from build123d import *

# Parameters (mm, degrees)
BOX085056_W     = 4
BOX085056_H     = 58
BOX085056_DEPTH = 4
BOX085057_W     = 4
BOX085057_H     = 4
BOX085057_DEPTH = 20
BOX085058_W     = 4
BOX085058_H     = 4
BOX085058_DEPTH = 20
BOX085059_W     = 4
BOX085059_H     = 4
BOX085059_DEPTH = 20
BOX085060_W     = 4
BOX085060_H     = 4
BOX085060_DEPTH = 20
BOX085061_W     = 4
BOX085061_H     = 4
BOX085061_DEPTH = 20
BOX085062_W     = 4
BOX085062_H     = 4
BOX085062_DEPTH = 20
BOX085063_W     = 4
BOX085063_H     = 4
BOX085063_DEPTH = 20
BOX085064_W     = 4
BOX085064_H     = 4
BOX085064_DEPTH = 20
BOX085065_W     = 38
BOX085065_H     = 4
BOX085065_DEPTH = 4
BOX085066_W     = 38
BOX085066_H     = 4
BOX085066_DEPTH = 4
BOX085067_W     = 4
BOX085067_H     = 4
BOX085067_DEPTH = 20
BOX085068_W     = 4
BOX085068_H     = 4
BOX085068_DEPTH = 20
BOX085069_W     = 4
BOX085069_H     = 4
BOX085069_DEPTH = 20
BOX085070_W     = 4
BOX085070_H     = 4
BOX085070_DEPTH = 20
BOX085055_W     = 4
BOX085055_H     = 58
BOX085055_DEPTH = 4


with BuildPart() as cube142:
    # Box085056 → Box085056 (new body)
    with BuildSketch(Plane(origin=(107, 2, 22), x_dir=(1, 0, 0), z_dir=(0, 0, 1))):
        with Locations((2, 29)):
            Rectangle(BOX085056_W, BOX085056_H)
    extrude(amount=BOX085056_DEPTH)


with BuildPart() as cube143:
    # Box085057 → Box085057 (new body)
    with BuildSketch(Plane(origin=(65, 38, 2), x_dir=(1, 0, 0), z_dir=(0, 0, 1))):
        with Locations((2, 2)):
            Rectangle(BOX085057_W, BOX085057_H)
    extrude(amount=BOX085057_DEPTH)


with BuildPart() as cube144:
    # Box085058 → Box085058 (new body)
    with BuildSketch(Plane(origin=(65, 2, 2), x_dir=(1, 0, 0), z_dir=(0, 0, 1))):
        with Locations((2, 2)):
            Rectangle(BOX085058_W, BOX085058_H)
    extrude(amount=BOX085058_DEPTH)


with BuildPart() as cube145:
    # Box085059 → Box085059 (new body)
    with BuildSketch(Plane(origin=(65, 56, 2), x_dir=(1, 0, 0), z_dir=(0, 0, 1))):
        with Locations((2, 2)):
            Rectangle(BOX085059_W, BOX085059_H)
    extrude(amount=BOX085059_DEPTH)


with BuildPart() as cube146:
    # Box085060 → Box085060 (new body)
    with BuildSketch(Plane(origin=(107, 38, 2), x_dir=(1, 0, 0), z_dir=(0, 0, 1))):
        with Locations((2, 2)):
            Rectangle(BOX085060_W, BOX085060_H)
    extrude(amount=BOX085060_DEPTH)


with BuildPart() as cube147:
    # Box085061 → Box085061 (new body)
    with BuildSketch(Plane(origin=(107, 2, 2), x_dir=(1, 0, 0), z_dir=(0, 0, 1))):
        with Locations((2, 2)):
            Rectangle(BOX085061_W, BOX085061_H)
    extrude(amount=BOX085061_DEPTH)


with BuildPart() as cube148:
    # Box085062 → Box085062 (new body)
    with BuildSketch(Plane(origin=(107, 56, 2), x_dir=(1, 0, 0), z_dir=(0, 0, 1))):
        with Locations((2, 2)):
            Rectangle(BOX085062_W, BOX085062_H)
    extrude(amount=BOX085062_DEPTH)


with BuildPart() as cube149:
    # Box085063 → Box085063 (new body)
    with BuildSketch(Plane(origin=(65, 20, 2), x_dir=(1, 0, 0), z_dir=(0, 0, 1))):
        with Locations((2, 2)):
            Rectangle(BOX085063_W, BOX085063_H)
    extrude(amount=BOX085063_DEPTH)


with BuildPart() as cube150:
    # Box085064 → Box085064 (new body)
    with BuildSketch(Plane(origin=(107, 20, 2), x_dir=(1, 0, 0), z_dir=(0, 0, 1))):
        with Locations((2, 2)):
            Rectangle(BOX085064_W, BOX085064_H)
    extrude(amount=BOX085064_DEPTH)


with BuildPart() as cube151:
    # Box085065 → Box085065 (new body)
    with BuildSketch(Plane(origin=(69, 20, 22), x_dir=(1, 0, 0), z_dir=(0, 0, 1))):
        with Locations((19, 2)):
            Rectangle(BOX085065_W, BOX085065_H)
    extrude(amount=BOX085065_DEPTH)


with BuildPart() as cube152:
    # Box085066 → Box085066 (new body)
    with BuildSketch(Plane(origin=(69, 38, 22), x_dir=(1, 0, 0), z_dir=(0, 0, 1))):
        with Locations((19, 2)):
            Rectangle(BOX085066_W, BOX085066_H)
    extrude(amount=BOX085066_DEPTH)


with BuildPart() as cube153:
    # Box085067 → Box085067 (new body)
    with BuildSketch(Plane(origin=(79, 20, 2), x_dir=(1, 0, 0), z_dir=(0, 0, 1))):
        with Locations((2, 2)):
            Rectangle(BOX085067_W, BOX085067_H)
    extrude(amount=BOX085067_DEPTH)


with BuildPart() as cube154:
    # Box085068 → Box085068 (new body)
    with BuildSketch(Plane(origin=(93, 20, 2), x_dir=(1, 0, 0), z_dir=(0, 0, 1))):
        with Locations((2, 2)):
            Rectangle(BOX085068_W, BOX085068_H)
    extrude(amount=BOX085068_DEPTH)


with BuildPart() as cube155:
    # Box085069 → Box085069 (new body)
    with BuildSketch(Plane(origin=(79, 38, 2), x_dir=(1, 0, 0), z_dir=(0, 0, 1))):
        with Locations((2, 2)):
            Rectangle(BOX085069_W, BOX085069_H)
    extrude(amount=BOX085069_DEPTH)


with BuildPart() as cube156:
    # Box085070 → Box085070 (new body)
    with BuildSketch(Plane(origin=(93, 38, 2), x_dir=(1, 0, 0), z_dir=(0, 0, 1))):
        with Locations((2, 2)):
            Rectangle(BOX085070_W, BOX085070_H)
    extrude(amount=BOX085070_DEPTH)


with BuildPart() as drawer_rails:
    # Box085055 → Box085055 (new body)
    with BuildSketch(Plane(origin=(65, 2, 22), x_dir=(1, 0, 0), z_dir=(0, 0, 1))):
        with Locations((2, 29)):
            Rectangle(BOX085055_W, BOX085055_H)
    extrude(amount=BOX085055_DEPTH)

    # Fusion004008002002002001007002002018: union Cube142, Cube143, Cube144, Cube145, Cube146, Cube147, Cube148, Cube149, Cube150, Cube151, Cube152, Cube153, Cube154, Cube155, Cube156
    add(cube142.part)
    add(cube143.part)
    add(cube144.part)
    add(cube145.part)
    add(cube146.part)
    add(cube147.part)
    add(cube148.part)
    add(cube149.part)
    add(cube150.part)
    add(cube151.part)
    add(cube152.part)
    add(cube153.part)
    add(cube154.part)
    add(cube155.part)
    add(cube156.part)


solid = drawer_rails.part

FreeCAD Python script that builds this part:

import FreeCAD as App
import Part
import Sketcher

V = App.Vector

doc = App.newDocument("Part")
body = doc.addObject("PartDesign::Body", "Body")

# Sketch on XY plane
sketch1 = body.newObject("Sketcher::SketchObject", "Sketch")
sketch1.AttachmentSupport = (doc.getObject("XY_Plane"), [""])
sketch1.MapMode = "FlatFace"
sketch1.AttachmentOffset = App.Placement(V(0, 0, 22), App.Rotation())
sketch1.addGeometry([
    Part.LineSegment(V(107, 60, 0), V(107, 2, 0)),
    Part.LineSegment(V(107, 2, 0), V(111, 2, 0)),
    Part.LineSegment(V(111, 2, 0), V(111, 60, 0)),
    Part.LineSegment(V(111, 60, 0), V(107, 60, 0)),
], False)
sketch1.addConstraint([
    Sketcher.Constraint("Coincident", 0, 2, 1, 1),
    Sketcher.Constraint("Coincident", 1, 2, 2, 1),
    Sketcher.Constraint("Coincident", 2, 2, 3, 1),
    Sketcher.Constraint("Coincident", 3, 2, 0, 1),
    Sketcher.Constraint("Vertical", 0),
    Sketcher.Constraint("Horizontal", 1),
    Sketcher.Constraint("Vertical", 2),
    Sketcher.Constraint("Horizontal", 3),
    Sketcher.Constraint("DistanceX", 1, 1, 1, 2, 4.0),
    Sketcher.Constraint("DistanceY", 0, 2, 0, 1, 58.0),
    Sketcher.Constraint("DistanceX", -1, 1, 0, 2, 107.0),
    Sketcher.Constraint("DistanceY", -1, 1, 0, 2, 2.0),
])
pad1 = body.newObject("PartDesign::Pad", "Pad")
pad1.Profile = sketch1
pad1.Length = 4
body2 = doc.addObject("PartDesign::Body", "Body001")

# Sketch on XY plane
sketch2 = body2.newObject("Sketcher::SketchObject", "Sketch001")
sketch2.AttachmentSupport = (doc.getObject("XY_Plane001"), [""])
sketch2.MapMode = "FlatFace"
sketch2.AttachmentOffset = App.Placement(V(0, 0, 2), App.Rotation())
sketch2.addGeometry([
    Part.LineSegment(V(65, 42, 0), V(65, 38, 0)),
    Part.LineSegment(V(65, 38, 0), V(69, 38, 0)),
    Part.LineSegment(V(69, 38, 0), V(69, 42, 0)),
    Part.LineSegment(V(69, 42, 0), V(65, 42, 0)),
], False)
sketch2.addConstraint([
    Sketcher.Constraint("Coincident", 0, 2, 1, 1),
    Sketcher.Constraint("Coincident", 1, 2, 2, 1),
    Sketcher.Constraint("Coincident", 2, 2, 3, 1),
    Sketcher.Constraint("Coincident", 3, 2, 0, 1),
    Sketcher.Constraint("Vertical", 0),
    Sketcher.Constraint("Horizontal", 1),
    Sketcher.Constraint("Vertical", 2),
    Sketcher.Constraint("Horizontal", 3),
    Sketcher.Constraint("Equal", 3, 0),
    Sketcher.Constraint("DistanceX", 1, 1, 1, 2, 4.0),
    Sketcher.Constraint("DistanceX", -1, 1, 0, 2, 65.0),
    Sketcher.Constraint("DistanceY", -1, 1, 0, 2, 38.0),
])
pad2 = body2.newObject("PartDesign::Pad", "Pad001")
pad2.Profile = sketch2
pad2.Length = 20
body3 = doc.addObject("PartDesign::Body", "Body002")

# Sketch on XY plane
sketch3 = body3.newObject("Sketcher::SketchObject", "Sketch002")
sketch3.AttachmentSupport = (doc.getObject("XY_Plane002"), [""])
sketch3.MapMode = "FlatFace"
sketch3.AttachmentOffset = App.Placement(V(0, 0, 2), App.Rotation())
sketch3.addGeometry([
    Part.LineSegment(V(65, 6, 0), V(65, 2, 0)),
    Part.LineSegment(V(65, 2, 0), V(69, 2, 0)),
    Part.LineSegment(V(69, 2, 0), V(69, 6, 0)),
    Part.LineSegment(V(69, 6, 0), V(65, 6, 0)),
], False)
sketch3.addConstraint([
    Sketcher.Constraint("Coincident", 0, 2, 1, 1),
    Sketcher.Constraint("Coincident", 1, 2, 2, 1),
    Sketcher.Constraint("Coincident", 2, 2, 3, 1),
    Sketcher.Constraint("Coincident", 3, 2, 0, 1),
    Sketcher.Constraint("Vertical", 0),
    Sketcher.Constraint("Horizontal", 1),
    Sketcher.Constraint("Vertical", 2),
    Sketcher.Constraint("Horizontal", 3),
    Sketcher.Constraint("Equal", 3, 0),
    Sketcher.Constraint("DistanceX", 1, 1, 1, 2, 4.0),
    Sketcher.Constraint("DistanceX", -1, 1, 0, 2, 65.0),
    Sketcher.Constraint("DistanceY", -1, 1, 0, 2, 2.0),
])
pad3 = body3.newObject("PartDesign::Pad", "Pad002")
pad3.Profile = sketch3
pad3.Length = 20
body4 = doc.addObject("PartDesign::Body", "Body003")

# Sketch on XY plane
sketch4 = body4.newObject("Sketcher::SketchObject", "Sketch003")
sketch4.AttachmentSupport = (doc.getObject("XY_Plane003"), [""])
sketch4.MapMode = "FlatFace"
sketch4.AttachmentOffset = App.Placement(V(0, 0, 2), App.Rotation())
sketch4.addGeometry([
    Part.LineSegment(V(65, 60, 0), V(65, 56, 0)),
    Part.LineSegment(V(65, 56, 0), V(69, 56, 0)),
    Part.LineSegment(V(69, 56, 0), V(69, 60, 0)),
    Part.LineSegment(V(69, 60, 0), V(65, 60, 0)),
], False)
sketch4.addConstraint([
    Sketcher.Constraint("Coincident", 0, 2, 1, 1),
    Sketcher.Constraint("Coincident", 1, 2, 2, 1),
    Sketcher.Constraint("Coincident", 2, 2, 3, 1),
    Sketcher.Constraint("Coincident", 3, 2, 0, 1),
    Sketcher.Constraint("Vertical", 0),
    Sketcher.Constraint("Horizontal", 1),
    Sketcher.Constraint("Vertical", 2),
    Sketcher.Constraint("Horizontal", 3),
    Sketcher.Constraint("Equal", 3, 0),
    Sketcher.Constraint("DistanceX", 1, 1, 1, 2, 4.0),
    Sketcher.Constraint("DistanceX", -1, 1, 0, 2, 65.0),
    Sketcher.Constraint("DistanceY", -1, 1, 0, 2, 56.0),
])
pad4 = body4.newObject("PartDesign::Pad", "Pad003")
pad4.Profile = sketch4
pad4.Length = 20
body5 = doc.addObject("PartDesign::Body", "Body004")

# Sketch on XY plane
sketch5 = body5.newObject("Sketcher::SketchObject", "Sketch004")
sketch5.AttachmentSupport = (doc.getObject("XY_Plane004"), [""])
sketch5.MapMode = "FlatFace"
sketch5.AttachmentOffset = App.Placement(V(0, 0, 2), App.Rotation())
sketch5.addGeometry([
    Part.LineSegment(V(107, 42, 0), V(107, 38, 0)),
    Part.LineSegment(V(107, 38, 0), V(111, 38, 0)),
    Part.LineSegment(V(111, 38, 0), V(111, 42, 0)),
    Part.LineSegment(V(111, 42, 0), V(107, 42, 0)),
], False)
sketch5.addConstraint([
    Sketcher.Constraint("Coincident", 0, 2, 1, 1),
    Sketcher.Constraint("Coincident", 1, 2, 2, 1),
    Sketcher.Constraint("Coincident", 2, 2, 3, 1),
    Sketcher.Constraint("Coincident", 3, 2, 0, 1),
    Sketcher.Constraint("Vertical", 0),
    Sketcher.Constraint("Horizontal", 1),
    Sketcher.Constraint("Vertical", 2),
    Sketcher.Constraint("Horizontal", 3),
    Sketcher.Constraint("Equal", 3, 0),
    Sketcher.Constraint("DistanceX", 1, 1, 1, 2, 4.0),
    Sketcher.Constraint("DistanceX", -1, 1, 0, 2, 107.0),
    Sketcher.Constraint("DistanceY", -1, 1, 0, 2, 38.0),
])
pad5 = body5.newObject("PartDesign::Pad", "Pad004")
pad5.Profile = sketch5
pad5.Length = 20
body6 = doc.addObject("PartDesign::Body", "Body005")

# Sketch on XY plane
sketch6 = body6.newObject("Sketcher::SketchObject", "Sketch005")
sketch6.AttachmentSupport = (doc.getObject("XY_Plane005"), [""])
sketch6.MapMode = "FlatFace"
sketch6.AttachmentOffset = App.Placement(V(0, 0, 2), App.Rotation())
sketch6.addGeometry([
    Part.LineSegment(V(107, 6, 0), V(107, 2, 0)),
    Part.LineSegment(V(107, 2, 0), V(111, 2, 0)),
    Part.LineSegment(V(111, 2, 0), V(111, 6, 0)),
    Part.LineSegment(V(111, 6, 0), V(107, 6, 0)),
], False)
sketch6.addConstraint([
    Sketcher.Constraint("Coincident", 0, 2, 1, 1),
    Sketcher.Constraint("Coincident", 1, 2, 2, 1),
    Sketcher.Constraint("Coincident", 2, 2, 3, 1),
    Sketcher.Constraint("Coincident", 3, 2, 0, 1),
    Sketcher.Constraint("Vertical", 0),
    Sketcher.Constraint("Horizontal", 1),
    Sketcher.Constraint("Vertical", 2),
    Sketcher.Constraint("Horizontal", 3),
    Sketcher.Constraint("Equal", 3, 0),
    Sketcher.Constraint("DistanceX", 1, 1, 1, 2, 4.0),
    Sketcher.Constraint("DistanceX", -1, 1, 0, 2, 107.0),
    Sketcher.Constraint("DistanceY", -1, 1, 0, 2, 2.0),
])
pad6 = body6.newObject("PartDesign::Pad", "Pad005")
pad6.Profile = sketch6
pad6.Length = 20
body7 = doc.addObject("PartDesign::Body", "Body006")

# Sketch on XY plane
sketch7 = body7.newObject("Sketcher::SketchObject", "Sketch006")
sketch7.AttachmentSupport = (doc.getObject("XY_Plane006"), [""])
sketch7.MapMode = "FlatFace"
sketch7.AttachmentOffset = App.Placement(V(0, 0, 2), App.Rotation())
sketch7.addGeometry([
    Part.LineSegment(V(107, 60, 0), V(107, 56, 0)),
    Part.LineSegment(V(107, 56, 0), V(111, 56, 0)),
    Part.LineSegment(V(111, 56, 0), V(111, 60, 0)),
    Part.LineSegment(V(111, 60, 0), V(107, 60, 0)),
], False)
sketch7.addConstraint([
    Sketcher.Constraint("Coincident", 0, 2, 1, 1),
    Sketcher.Constraint("Coincident", 1, 2, 2, 1),
    Sketcher.Constraint("Coincident", 2, 2, 3, 1),
    Sketcher.Constraint("Coincident", 3, 2, 0, 1),
    Sketcher.Constraint("Vertical", 0),
    Sketcher.Constraint("Horizontal", 1),
    Sketcher.Constraint("Vertical", 2),
    Sketcher.Constraint("Horizontal", 3),
    Sketcher.Constraint("Equal", 3, 0),
    Sketcher.Constraint("DistanceX", 1, 1, 1, 2, 4.0),
    Sketcher.Constraint("DistanceX", -1, 1, 0, 2, 107.0),
    Sketcher.Constraint("DistanceY", -1, 1, 0, 2, 56.0),
])
pad7 = body7.newObject("PartDesign::Pad", "Pad006")
pad7.Profile = sketch7
pad7.Length = 20
body8 = doc.addObject("PartDesign::Body", "Body007")

# Sketch on XY plane
sketch8 = body8.newObject("Sketcher::SketchObject", "Sketch007")
sketch8.AttachmentSupport = (doc.getObject("XY_Plane007"), [""])
sketch8.MapMode = "FlatFace"
sketch8.AttachmentOffset = App.Placement(V(0, 0, 2), App.Rotation())
sketch8.addGeometry([
    Part.LineSegment(V(65, 24, 0), V(65, 20, 0)),
    Part.LineSegment(V(65, 20, 0), V(69, 20, 0)),
    Part.LineSegment(V(69, 20, 0), V(69, 24, 0)),
    Part.LineSegment(V(69, 24, 0), V(65, 24, 0)),
], False)
sketch8.addConstraint([
    Sketcher.Constraint("Coincident", 0, 2, 1, 1),
    Sketcher.Constraint("Coincident", 1, 2, 2, 1),
    Sketcher.Constraint("Coincident", 2, 2, 3, 1),
    Sketcher.Constraint("Coincident", 3, 2, 0, 1),
    Sketcher.Constraint("Vertical", 0),
    Sketcher.Constraint("Horizontal", 1),
    Sketcher.Constraint("Vertical", 2),
    Sketcher.Constraint("Horizontal", 3),
    Sketcher.Constraint("Equal", 3, 0),
    Sketcher.Constraint("DistanceX", 1, 1, 1, 2, 4.0),
    Sketcher.Constraint("DistanceX", -1, 1, 0, 2, 65.0),
    Sketcher.Constraint("DistanceY", -1, 1, 0, 2, 20.0),
])
pad8 = body8.newObject("PartDesign::Pad", "Pad007")
pad8.Profile = sketch8
pad8.Length = 20
body9 = doc.addObject("PartDesign::Body", "Body008")

# Sketch on XY plane
sketch9 = body9.newObject("Sketcher::SketchObject", "Sketch008")
sketch9.AttachmentSupport = (doc.getObject("XY_Plane008"), [""])
sketch9.MapMode = "FlatFace"
sketch9.AttachmentOffset = App.Placement(V(0, 0, 2), App.Rotation())
sketch9.addGeometry([
    Part.LineSegment(V(107, 24, 0), V(107, 20, 0)),
    Part.LineSegment(V(107, 20, 0), V(111, 20, 0)),
    Part.LineSegment(V(111, 20, 0), V(111, 24, 0)),
    Part.LineSegment(V(111, 24, 0), V(107, 24, 0)),
], False)
sketch9.addConstraint([
    Sketcher.Constraint("Coincident", 0, 2, 1, 1),
    Sketcher.Constraint("Coincident", 1, 2, 2, 1),
    Sketcher.Constraint("Coincident", 2, 2, 3, 1),
    Sketcher.Constraint("Coincident", 3, 2, 0, 1),
    Sketcher.Constraint("Vertical", 0),
    Sketcher.Constraint("Horizontal", 1),
    Sketcher.Constraint("Vertical", 2),
    Sketcher.Constraint("Horizontal", 3),
    Sketcher.Constraint("Equal", 3, 0),
    Sketcher.Constraint("DistanceX", 1, 1, 1, 2, 4.0),
    Sketcher.Constraint("DistanceX", -1, 1, 0, 2, 107.0),
    Sketcher.Constraint("DistanceY", -1, 1, 0, 2, 20.0),
])
pad9 = body9.newObject("PartDesign::Pad", "Pad008")
pad9.Profile = sketch9
pad9.Length = 20
body10 = doc.addObject("PartDesign::Body", "Body009")

# Sketch on XY plane
sketch10 = body10.newObject("Sketcher::SketchObject", "Sketch009")
sketch10.AttachmentSupport = (doc.getObject("XY_Plane009"), [""])
sketch10.MapMode = "FlatFace"
sketch10.AttachmentOffset = App.Placement(V(0, 0, 22), App.Rotation())
sketch10.addGeometry([
    Part.LineSegment(V(69, 24, 0), V(69, 20, 0)),
    Part.LineSegment(V(69, 20, 0), V(107, 20, 0)),
    Part.LineSegment(V(107, 20, 0), V(107, 24, 0)),
    Part.LineSegment(V(107, 24, 0), V(69, 24, 0)),
], False)
sketch10.addConstraint([
    Sketcher.Constraint("Coincident", 0, 2, 1, 1),
    Sketcher.Constraint("Coincident", 1, 2, 2, 1),
    Sketcher.Constraint("Coincident", 2, 2, 3, 1),
    Sketcher.Constraint("Coincident", 3, 2, 0, 1),
    Sketcher.Constraint("Vertical", 0),
    Sketcher.Constraint("Horizontal", 1),
    Sketcher.Constraint("Vertical", 2),
    Sketcher.Constraint("Horizontal", 3),
    Sketcher.Constraint("DistanceX", 1, 1, 1, 2, 38.0),
    Sketcher.Constraint("DistanceY", 0, 2, 0, 1, 4.0),
    Sketcher.Constraint("DistanceX", -1, 1, 0, 2, 69.0),
    Sketcher.Constraint("DistanceY", -1, 1, 0, 2, 20.0),
])
pad10 = body10.newObject("PartDesign::Pad", "Pad009")
pad10.Profile = sketch10
pad10.Length = 4
body11 = doc.addObject("PartDesign::Body", "Body010")

# Sketch on XY plane
sketch11 = body11.newObject("Sketcher::SketchObject", "Sketch010")
sketch11.AttachmentSupport = (doc.getObject("XY_Plane010"), [""])
sketch11.MapMode = "FlatFace"
sketch11.AttachmentOffset = App.Placement(V(0, 0, 22), App.Rotation())
sketch11.addGeometry([
    Part.LineSegment(V(69, 42, 0), V(69, 38, 0)),
    Part.LineSegment(V(69, 38, 0), V(107, 38, 0)),
    Part.LineSegment(V(107, 38, 0), V(107, 42, 0)),
    Part.LineSegment(V(107, 42, 0), V(69, 42, 0)),
], False)
sketch11.addConstraint([
    Sketcher.Constraint("Coincident", 0, 2, 1, 1),
    Sketcher.Constraint("Coincident", 1, 2, 2, 1),
    Sketcher.Constraint("Coincident", 2, 2, 3, 1),
    Sketcher.Constraint("Coincident", 3, 2, 0, 1),
    Sketcher.Constraint("Vertical", 0),
    Sketcher.Constraint("Horizontal", 1),
    Sketcher.Constraint("Vertical", 2),
    Sketcher.Constraint("Horizontal", 3),
    Sketcher.Constraint("DistanceX", 1, 1, 1, 2, 38.0),
    Sketcher.Constraint("DistanceY", 0, 2, 0, 1, 4.0),
    Sketcher.Constraint("DistanceX", -1, 1, 0, 2, 69.0),
    Sketcher.Constraint("DistanceY", -1, 1, 0, 2, 38.0),
])
pad11 = body11.newObject("PartDesign::Pad", "Pad010")
pad11.Profile = sketch11
pad11.Length = 4
body12 = doc.addObject("PartDesign::Body", "Body011")

# Sketch on XY plane
sketch12 = body12.newObject("Sketcher::SketchObject", "Sketch011")
sketch12.AttachmentSupport = (doc.getObject("XY_Plane011"), [""])
sketch12.MapMode = "FlatFace"
sketch12.AttachmentOffset = App.Placement(V(0, 0, 2), App.Rotation())
sketch12.addGeometry([
    Part.LineSegment(V(79, 24, 0), V(79, 20, 0)),
    Part.LineSegment(V(79, 20, 0), V(83, 20, 0)),
    Part.LineSegment(V(83, 20, 0), V(83, 24, 0)),
    Part.LineSegment(V(83, 24, 0), V(79, 24, 0)),
], False)
sketch12.addConstraint([
    Sketcher.Constraint("Coincident", 0, 2, 1, 1),
    Sketcher.Constraint("Coincident", 1, 2, 2, 1),
    Sketcher.Constraint("Coincident", 2, 2, 3, 1),
    Sketcher.Constraint("Coincident", 3, 2, 0, 1),
    Sketcher.Constraint("Vertical", 0),
    Sketcher.Constraint("Horizontal", 1),
    Sketcher.Constraint("Vertical", 2),
    Sketcher.Constraint("Horizontal", 3),
    Sketcher.Constraint("Equal", 3, 0),
    Sketcher.Constraint("DistanceX", 1, 1, 1, 2, 4.0),
    Sketcher.Constraint("DistanceX", -1, 1, 0, 2, 79.0),
    Sketcher.Constraint("DistanceY", -1, 1, 0, 2, 20.0),
])
pad12 = body12.newObject("PartDesign::Pad", "Pad011")
pad12.Profile = sketch12
pad12.Length = 20
body13 = doc.addObject("PartDesign::Body", "Body012")

# Sketch on XY plane
sketch13 = body13.newObject("Sketcher::SketchObject", "Sketch012")
sketch13.AttachmentSupport = (doc.getObject("XY_Plane012"), [""])
sketch13.MapMode = "FlatFace"
sketch13.AttachmentOffset = App.Placement(V(0, 0, 2), App.Rotation())
sketch13.addGeometry([
    Part.LineSegment(V(93, 24, 0), V(93, 20, 0)),
    Part.LineSegment(V(93, 20, 0), V(97, 20, 0)),
    Part.LineSegment(V(97, 20, 0), V(97, 24, 0)),
    Part.LineSegment(V(97, 24, 0), V(93, 24, 0)),
], False)
sketch13.addConstraint([
    Sketcher.Constraint("Coincident", 0, 2, 1, 1),
    Sketcher.Constraint("Coincident", 1, 2, 2, 1),
    Sketcher.Constraint("Coincident", 2, 2, 3, 1),
    Sketcher.Constraint("Coincident", 3, 2, 0, 1),
    Sketcher.Constraint("Vertical", 0),
    Sketcher.Constraint("Horizontal", 1),
    Sketcher.Constraint("Vertical", 2),
    Sketcher.Constraint("Horizontal", 3),
    Sketcher.Constraint("Equal", 3, 0),
    Sketcher.Constraint("DistanceX", 1, 1, 1, 2, 4.0),
    Sketcher.Constraint("DistanceX", -1, 1, 0, 2, 93.0),
    Sketcher.Constraint("DistanceY", -1, 1, 0, 2, 20.0),
])
pad13 = body13.newObject("PartDesign::Pad", "Pad012")
pad13.Profile = sketch13
pad13.Length = 20
body14 = doc.addObject("PartDesign::Body", "Body013")

# Sketch on XY plane
sketch14 = body14.newObject("Sketcher::SketchObject", "Sketch013")
sketch14.AttachmentSupport = (doc.getObject("XY_Plane013"), [""])
sketch14.MapMode = "FlatFace"
sketch14.AttachmentOffset = App.Placement(V(0, 0, 2), App.Rotation())
sketch14.addGeometry([
    Part.LineSegment(V(79, 42, 0), V(79, 38, 0)),
    Part.LineSegment(V(79, 38, 0), V(83, 38, 0)),
    Part.LineSegment(V(83, 38, 0), V(83, 42, 0)),
    Part.LineSegment(V(83, 42, 0), V(79, 42, 0)),
], False)
sketch14.addConstraint([
    Sketcher.Constraint("Coincident", 0, 2, 1, 1),
    Sketcher.Constraint("Coincident", 1, 2, 2, 1),
    Sketcher.Constraint("Coincident", 2, 2, 3, 1),
    Sketcher.Constraint("Coincident", 3, 2, 0, 1),
    Sketcher.Constraint("Vertical", 0),
    Sketcher.Constraint("Horizontal", 1),
    Sketcher.Constraint("Vertical", 2),
    Sketcher.Constraint("Horizontal", 3),
    Sketcher.Constraint("Equal", 3, 0),
    Sketcher.Constraint("DistanceX", 1, 1, 1, 2, 4.0),
    Sketcher.Constraint("DistanceX", -1, 1, 0, 2, 79.0),
    Sketcher.Constraint("DistanceY", -1, 1, 0, 2, 38.0),
])
pad14 = body14.newObject("PartDesign::Pad", "Pad013")
pad14.Profile = sketch14
pad14.Length = 20
body15 = doc.addObject("PartDesign::Body", "Body014")

# Sketch on XY plane
sketch15 = body15.newObject("Sketcher::SketchObject", "Sketch014")
sketch15.AttachmentSupport = (doc.getObject("XY_Plane014"), [""])
sketch15.MapMode = "FlatFace"
sketch15.AttachmentOffset = App.Placement(V(0, 0, 2), App.Rotation())
sketch15.addGeometry([
    Part.LineSegment(V(93, 42, 0), V(93, 38, 0)),
    Part.LineSegment(V(93, 38, 0), V(97, 38, 0)),
    Part.LineSegment(V(97, 38, 0), V(97, 42, 0)),
    Part.LineSegment(V(97, 42, 0), V(93, 42, 0)),
], False)
sketch15.addConstraint([
    Sketcher.Constraint("Coincident", 0, 2, 1, 1),
    Sketcher.Constraint("Coincident", 1, 2, 2, 1),
    Sketcher.Constraint("Coincident", 2, 2, 3, 1),
    Sketcher.Constraint("Coincident", 3, 2, 0, 1),
    Sketcher.Constraint("Vertical", 0),
    Sketcher.Constraint("Horizontal", 1),
    Sketcher.Constraint("Vertical", 2),
    Sketcher.Constraint("Horizontal", 3),
    Sketcher.Constraint("Equal", 3, 0),
    Sketcher.Constraint("DistanceX", 1, 1, 1, 2, 4.0),
    Sketcher.Constraint("DistanceX", -1, 1, 0, 2, 93.0),
    Sketcher.Constraint("DistanceY", -1, 1, 0, 2, 38.0),
])
pad15 = body15.newObject("PartDesign::Pad", "Pad014")
pad15.Profile = sketch15
pad15.Length = 20
body16 = doc.addObject("PartDesign::Body", "Body015")
body16.AllowCompound = True

# Sketch on XY plane
sketch16 = body16.newObject("Sketcher::SketchObject", "Sketch015")
sketch16.AttachmentSupport = (doc.getObject("XY_Plane015"), [""])
sketch16.MapMode = "FlatFace"
sketch16.AttachmentOffset = App.Placement(V(0, 0, 22), App.Rotation())
sketch16.addGeometry([
    Part.LineSegment(V(65, 60, 0), V(65, 2, 0)),
    Part.LineSegment(V(65, 2, 0), V(69, 2, 0)),
    Part.LineSegment(V(69, 2, 0), V(69, 60, 0)),
    Part.LineSegment(V(69, 60, 0), V(65, 60, 0)),
], False)
sketch16.addConstraint([
    Sketcher.Constraint("Coincident", 0, 2, 1, 1),
    Sketcher.Constraint("Coincident", 1, 2, 2, 1),
    Sketcher.Constraint("Coincident", 2, 2, 3, 1),
    Sketcher.Constraint("Coincident", 3, 2, 0, 1),
    Sketcher.Constraint("Vertical", 0),
    Sketcher.Constraint("Horizontal", 1),
    Sketcher.Constraint("Vertical", 2),
    Sketcher.Constraint("Horizontal", 3),
    Sketcher.Constraint("DistanceX", 1, 1, 1, 2, 4.0),
    Sketcher.Constraint("DistanceY", 0, 2, 0, 1, 58.0),
    Sketcher.Constraint("DistanceX", -1, 1, 0, 2, 65.0),
    Sketcher.Constraint("DistanceY", -1, 1, 0, 2, 2.0),
])
pad16 = body16.newObject("PartDesign::Pad", "Pad015")
pad16.Profile = sketch16
pad16.Length = 4
doc.recompute()

boolean = body16.newObject("PartDesign::Boolean", "Boolean")
boolean.Type = "Fuse"
boolean.addObjects([body])
doc.recompute()

boolean2 = body16.newObject("PartDesign::Boolean", "Boolean001")
boolean2.Type = "Fuse"
boolean2.addObjects([body2])
doc.recompute()

boolean3 = body16.newObject("PartDesign::Boolean", "Boolean002")
boolean3.Type = "Fuse"
boolean3.addObjects([body3])
doc.recompute()

boolean4 = body16.newObject("PartDesign::Boolean", "Boolean003")
boolean4.Type = "Fuse"
boolean4.addObjects([body4])
doc.recompute()

boolean5 = body16.newObject("PartDesign::Boolean", "Boolean004")
boolean5.Type = "Fuse"
boolean5.addObjects([body5])
doc.recompute()

boolean6 = body16.newObject("PartDesign::Boolean", "Boolean005")
boolean6.Type = "Fuse"
boolean6.addObjects([body6])
doc.recompute()

boolean7 = body16.newObject("PartDesign::Boolean", "Boolean006")
boolean7.Type = "Fuse"
boolean7.addObjects([body7])
doc.recompute()

boolean8 = body16.newObject("PartDesign::Boolean", "Boolean007")
boolean8.Type = "Fuse"
boolean8.addObjects([body8])
doc.recompute()

boolean9 = body16.newObject("PartDesign::Boolean", "Boolean008")
boolean9.Type = "Fuse"
boolean9.addObjects([body9])
doc.recompute()

boolean10 = body16.newObject("PartDesign::Boolean", "Boolean009")
boolean10.Type = "Fuse"
boolean10.addObjects([body10])
doc.recompute()

boolean11 = body16.newObject("PartDesign::Boolean", "Boolean010")
boolean11.Type = "Fuse"
boolean11.addObjects([body11])
doc.recompute()

boolean12 = body16.newObject("PartDesign::Boolean", "Boolean011")
boolean12.Type = "Fuse"
boolean12.addObjects([body12])
doc.recompute()

boolean13 = body16.newObject("PartDesign::Boolean", "Boolean012")
boolean13.Type = "Fuse"
boolean13.addObjects([body13])
doc.recompute()

boolean14 = body16.newObject("PartDesign::Boolean", "Boolean013")
boolean14.Type = "Fuse"
boolean14.addObjects([body14])
doc.recompute()

boolean15 = body16.newObject("PartDesign::Boolean", "Boolean014")
boolean15.Type = "Fuse"
boolean15.addObjects([body15])

doc.recompute()
